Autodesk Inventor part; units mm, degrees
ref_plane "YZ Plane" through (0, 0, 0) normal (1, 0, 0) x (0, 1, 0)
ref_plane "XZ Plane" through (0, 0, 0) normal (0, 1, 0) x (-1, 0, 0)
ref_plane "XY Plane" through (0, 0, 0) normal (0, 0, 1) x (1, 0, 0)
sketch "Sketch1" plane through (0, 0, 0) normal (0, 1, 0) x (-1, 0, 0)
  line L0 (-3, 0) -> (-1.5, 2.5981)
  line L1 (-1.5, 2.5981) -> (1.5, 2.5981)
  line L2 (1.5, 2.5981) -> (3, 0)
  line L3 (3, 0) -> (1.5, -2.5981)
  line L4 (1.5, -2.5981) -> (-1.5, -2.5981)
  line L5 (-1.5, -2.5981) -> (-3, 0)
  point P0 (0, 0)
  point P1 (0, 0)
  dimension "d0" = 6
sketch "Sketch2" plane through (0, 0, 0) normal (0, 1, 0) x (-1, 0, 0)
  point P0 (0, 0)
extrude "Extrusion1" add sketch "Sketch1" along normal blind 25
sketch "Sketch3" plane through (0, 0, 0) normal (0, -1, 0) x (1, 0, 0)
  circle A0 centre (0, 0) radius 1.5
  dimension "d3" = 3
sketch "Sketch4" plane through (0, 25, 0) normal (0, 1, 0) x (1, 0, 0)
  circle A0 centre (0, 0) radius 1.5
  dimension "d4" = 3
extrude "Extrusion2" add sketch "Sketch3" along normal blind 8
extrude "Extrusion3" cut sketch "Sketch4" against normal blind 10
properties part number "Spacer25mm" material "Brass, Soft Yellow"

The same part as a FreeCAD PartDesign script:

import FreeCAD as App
import Part
import Sketcher
Q = App.Units.Quantity


def add_polygon(sketch, points):
    """Adds a closed chain of lines whose ends are joined by coincident constraints."""
    first, n = sketch.GeometryCount, len(points)
    for a, b in zip(points, points[1:] + points[:1]):
        sketch.addGeometry(Part.LineSegment(App.Vector(*a, 0), App.Vector(*b, 0)), False)
    for i in range(n):
        sketch.addConstraint(Sketcher.Constraint("Coincident", first + i, 2, first + (i + 1) % n, 1))

doc = App.newDocument("Part")
body = doc.addObject("PartDesign::Body", "Body")

# Sketch on XZ plane
sketch1 = body.newObject("Sketcher::SketchObject", "Sketch")
sketch1.AttachmentSupport = (doc.getObject("XZ_Plane"), [""])
sketch1.MapMode = "FlatFace"
add_polygon(sketch1, [(1.5, 2.5981), (3, 0), (1.5, -2.5981), (-1.5, -2.5981), (-3, 0), (-1.5, 2.5981)])  # lines 0-5
sketch1.addConstraint([
    Sketcher.Constraint("Horizontal", 2),
    Sketcher.Constraint("Horizontal", 5),
    Sketcher.Constraint("Symmetric", 0, 2, 3, 2, -1, 1),
    Sketcher.Constraint("Symmetric", 1, 2, 4, 2, -1, 1),
    Sketcher.Constraint("PointOnObject", 0, 2, -1),
    Sketcher.Constraint("Parallel", 0, 3),
    Sketcher.Constraint("Vertical", 2, 2, 4, 2),
    Sketcher.Constraint("DistanceX", 3, 2, 0, 2, 6.0),
    Sketcher.Constraint("DistanceX", 2, 2, 2, 1, 3.0),
    Sketcher.Constraint("Angle", 0, Q("-60.0002 deg")),
])
pad1 = body.newObject("PartDesign::Pad", "Pad")
pad1.Profile = sketch1
pad1.Length = 25
pad1.Reversed = True

# Sketch on XZ plane
sketch2 = body.newObject("Sketcher::SketchObject", "Sketch001")
sketch2.AttachmentSupport = (doc.getObject("XZ_Plane"), [""])
sketch2.MapMode = "FlatFace"
sketch2.addGeometry(Part.Circle(App.Vector(0, 0, 0), App.Vector(0, 0, 1), 1.5), False)
sketch2.addConstraint([
    Sketcher.Constraint("Coincident", 0, 3, -1, 1),
    Sketcher.Constraint("Diameter", 0, 3.0),
])
pad2 = body.newObject("PartDesign::Pad", "Pad001")
pad2.Profile = sketch2
pad2.Length = 8

# Sketch on XZ plane
sketch3 = body.newObject("Sketcher::SketchObject", "Sketch002")
sketch3.AttachmentSupport = (doc.getObject("XZ_Plane"), [""])
sketch3.MapMode = "FlatFace"
sketch3.AttachmentOffset = App.Placement(App.Vector(0, 0, -25), App.Rotation())
sketch3.addGeometry(Part.Circle(App.Vector(0, 0, 0), App.Vector(0, 0, 1), 1.5), False)
sketch3.addConstraint([
    Sketcher.Constraint("Coincident", 0, 3, -1, 1),
    Sketcher.Constraint("Diameter", 0, 3.0),
])
pocket1 = body.newObject("PartDesign::Pocket", "Pocket")
pocket1.Profile = sketch3
pocket1.Length = 10
pocket1.Reversed = True

doc.recompute()
